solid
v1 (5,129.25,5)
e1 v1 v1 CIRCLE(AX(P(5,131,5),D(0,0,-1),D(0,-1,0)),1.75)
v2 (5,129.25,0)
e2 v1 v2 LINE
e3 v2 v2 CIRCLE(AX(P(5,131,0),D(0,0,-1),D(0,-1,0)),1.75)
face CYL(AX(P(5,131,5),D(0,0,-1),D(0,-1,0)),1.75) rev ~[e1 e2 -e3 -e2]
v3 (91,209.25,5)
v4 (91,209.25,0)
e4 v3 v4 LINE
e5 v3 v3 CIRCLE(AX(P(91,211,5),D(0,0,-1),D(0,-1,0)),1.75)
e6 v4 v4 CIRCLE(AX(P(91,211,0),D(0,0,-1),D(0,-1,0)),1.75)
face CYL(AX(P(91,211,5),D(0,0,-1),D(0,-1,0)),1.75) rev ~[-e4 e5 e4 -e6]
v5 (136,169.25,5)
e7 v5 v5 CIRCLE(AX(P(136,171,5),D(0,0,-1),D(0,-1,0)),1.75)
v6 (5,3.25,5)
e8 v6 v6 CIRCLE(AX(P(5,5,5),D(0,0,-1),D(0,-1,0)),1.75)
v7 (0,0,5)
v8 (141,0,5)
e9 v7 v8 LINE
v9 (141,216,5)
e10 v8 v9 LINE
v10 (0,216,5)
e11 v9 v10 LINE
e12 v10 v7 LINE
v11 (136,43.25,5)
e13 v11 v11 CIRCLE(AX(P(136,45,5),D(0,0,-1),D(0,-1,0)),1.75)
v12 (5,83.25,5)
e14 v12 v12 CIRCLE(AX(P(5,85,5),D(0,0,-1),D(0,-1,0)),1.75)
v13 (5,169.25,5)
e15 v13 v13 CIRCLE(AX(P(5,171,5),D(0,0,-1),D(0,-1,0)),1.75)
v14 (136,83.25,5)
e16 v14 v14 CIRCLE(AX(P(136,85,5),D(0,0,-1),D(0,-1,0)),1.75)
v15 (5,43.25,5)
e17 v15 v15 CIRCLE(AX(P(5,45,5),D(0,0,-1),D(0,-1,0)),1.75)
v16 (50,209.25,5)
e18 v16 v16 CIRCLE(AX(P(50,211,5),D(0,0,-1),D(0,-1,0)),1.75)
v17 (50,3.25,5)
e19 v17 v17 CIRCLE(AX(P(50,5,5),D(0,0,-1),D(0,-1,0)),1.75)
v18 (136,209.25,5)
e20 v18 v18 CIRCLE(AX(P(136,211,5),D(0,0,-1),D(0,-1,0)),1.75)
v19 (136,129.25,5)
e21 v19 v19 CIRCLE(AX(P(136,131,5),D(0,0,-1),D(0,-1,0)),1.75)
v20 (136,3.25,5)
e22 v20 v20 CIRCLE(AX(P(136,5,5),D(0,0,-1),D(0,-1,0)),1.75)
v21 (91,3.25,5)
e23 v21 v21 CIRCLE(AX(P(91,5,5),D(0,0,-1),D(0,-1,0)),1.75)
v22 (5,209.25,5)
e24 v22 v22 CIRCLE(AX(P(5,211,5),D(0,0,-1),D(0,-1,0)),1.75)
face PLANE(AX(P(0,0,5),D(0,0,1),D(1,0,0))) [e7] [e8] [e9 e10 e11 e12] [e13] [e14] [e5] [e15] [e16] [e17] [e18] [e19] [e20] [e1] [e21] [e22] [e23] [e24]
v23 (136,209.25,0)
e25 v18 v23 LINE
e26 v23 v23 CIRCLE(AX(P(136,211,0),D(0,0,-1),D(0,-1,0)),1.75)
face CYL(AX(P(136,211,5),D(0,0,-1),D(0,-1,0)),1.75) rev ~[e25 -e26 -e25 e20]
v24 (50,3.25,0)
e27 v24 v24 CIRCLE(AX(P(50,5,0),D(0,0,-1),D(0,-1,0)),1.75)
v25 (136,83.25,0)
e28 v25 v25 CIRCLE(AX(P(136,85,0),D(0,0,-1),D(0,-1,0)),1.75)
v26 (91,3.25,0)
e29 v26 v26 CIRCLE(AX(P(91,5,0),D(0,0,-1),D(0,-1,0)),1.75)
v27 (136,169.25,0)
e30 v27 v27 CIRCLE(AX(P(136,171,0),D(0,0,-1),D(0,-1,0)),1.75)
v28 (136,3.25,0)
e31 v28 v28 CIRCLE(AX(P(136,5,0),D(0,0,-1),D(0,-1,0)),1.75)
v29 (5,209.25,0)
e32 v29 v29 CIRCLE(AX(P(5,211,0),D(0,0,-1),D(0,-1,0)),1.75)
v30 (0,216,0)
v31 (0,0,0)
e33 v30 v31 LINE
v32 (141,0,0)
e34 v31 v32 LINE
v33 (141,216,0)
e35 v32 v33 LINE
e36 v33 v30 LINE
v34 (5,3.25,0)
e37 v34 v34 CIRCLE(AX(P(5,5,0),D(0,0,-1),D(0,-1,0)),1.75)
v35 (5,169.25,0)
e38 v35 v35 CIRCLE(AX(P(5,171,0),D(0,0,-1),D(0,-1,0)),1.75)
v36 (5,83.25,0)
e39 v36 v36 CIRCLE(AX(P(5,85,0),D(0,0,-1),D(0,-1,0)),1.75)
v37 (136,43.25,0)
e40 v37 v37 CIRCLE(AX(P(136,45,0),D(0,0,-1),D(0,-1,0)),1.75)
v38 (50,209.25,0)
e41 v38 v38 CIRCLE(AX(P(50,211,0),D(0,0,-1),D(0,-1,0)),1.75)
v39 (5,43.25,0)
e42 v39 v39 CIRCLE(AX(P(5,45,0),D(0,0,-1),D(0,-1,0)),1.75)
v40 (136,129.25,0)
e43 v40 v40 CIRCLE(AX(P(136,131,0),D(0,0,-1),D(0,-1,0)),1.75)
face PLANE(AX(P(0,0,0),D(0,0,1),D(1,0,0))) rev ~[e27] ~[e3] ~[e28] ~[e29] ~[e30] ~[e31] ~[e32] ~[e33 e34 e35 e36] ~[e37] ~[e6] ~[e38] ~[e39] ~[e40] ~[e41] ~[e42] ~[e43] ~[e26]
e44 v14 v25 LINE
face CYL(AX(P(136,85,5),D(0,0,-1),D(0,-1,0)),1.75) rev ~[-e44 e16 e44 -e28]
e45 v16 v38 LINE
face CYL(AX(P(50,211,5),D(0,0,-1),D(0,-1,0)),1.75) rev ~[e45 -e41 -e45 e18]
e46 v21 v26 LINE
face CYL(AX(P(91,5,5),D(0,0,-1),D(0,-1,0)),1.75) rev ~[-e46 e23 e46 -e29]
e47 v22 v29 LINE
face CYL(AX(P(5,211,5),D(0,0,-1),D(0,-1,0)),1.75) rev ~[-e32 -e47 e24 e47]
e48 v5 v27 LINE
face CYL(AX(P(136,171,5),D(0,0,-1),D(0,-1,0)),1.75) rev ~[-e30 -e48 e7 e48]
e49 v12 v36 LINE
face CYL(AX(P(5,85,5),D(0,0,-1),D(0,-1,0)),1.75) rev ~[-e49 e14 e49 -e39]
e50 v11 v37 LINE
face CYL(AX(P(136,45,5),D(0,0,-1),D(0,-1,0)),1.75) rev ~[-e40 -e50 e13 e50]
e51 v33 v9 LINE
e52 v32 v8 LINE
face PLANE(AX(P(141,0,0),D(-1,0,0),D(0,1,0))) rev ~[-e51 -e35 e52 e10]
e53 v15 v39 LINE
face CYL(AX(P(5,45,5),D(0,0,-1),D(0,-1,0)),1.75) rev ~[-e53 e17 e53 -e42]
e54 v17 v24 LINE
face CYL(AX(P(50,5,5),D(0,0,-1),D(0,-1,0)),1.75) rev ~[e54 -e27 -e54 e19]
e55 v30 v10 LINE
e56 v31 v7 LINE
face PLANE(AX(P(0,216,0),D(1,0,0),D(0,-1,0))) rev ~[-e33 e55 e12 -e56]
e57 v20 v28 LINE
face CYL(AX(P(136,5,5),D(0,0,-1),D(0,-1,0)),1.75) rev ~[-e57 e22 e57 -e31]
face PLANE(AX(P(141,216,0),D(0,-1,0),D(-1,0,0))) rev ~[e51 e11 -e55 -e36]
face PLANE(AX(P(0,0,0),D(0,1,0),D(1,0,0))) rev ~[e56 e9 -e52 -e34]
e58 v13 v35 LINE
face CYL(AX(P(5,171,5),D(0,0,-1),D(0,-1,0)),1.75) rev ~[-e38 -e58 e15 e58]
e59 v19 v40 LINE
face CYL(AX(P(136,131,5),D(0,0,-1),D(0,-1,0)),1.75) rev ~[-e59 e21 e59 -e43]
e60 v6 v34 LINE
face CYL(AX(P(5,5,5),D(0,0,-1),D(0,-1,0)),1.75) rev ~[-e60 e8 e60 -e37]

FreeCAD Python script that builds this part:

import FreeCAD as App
import Part
import Sketcher


def add_polygon(sketch, points):
    """Adds a closed chain of lines whose ends are joined by coincident constraints."""
    first, n = sketch.GeometryCount, len(points)
    for a, b in zip(points, points[1:] + points[:1]):
        sketch.addGeometry(Part.LineSegment(App.Vector(*a, 0), App.Vector(*b, 0)), False)
    for i in range(n):
        sketch.addConstraint(Sketcher.Constraint("Coincident", first + i, 2, first + (i + 1) % n, 1))

doc = App.newDocument("Part")
body = doc.addObject("PartDesign::Body", "Body")

# Sketch on XY plane
sketch1 = body.newObject("Sketcher::SketchObject", "Sketch")
sketch1.AttachmentSupport = (doc.getObject("XY_Plane"), [""])
sketch1.MapMode = "FlatFace"
add_polygon(sketch1, [(0, 216), (0, 0), (141, 0), (141, 216)])  # lines 0-3
sketch1.addConstraint(Sketcher.Constraint("Vertical", 0))
sketch1.addConstraint(Sketcher.Constraint("Horizontal", 1))
sketch1.addConstraint(Sketcher.Constraint("Vertical", 2))
sketch1.addConstraint(Sketcher.Constraint("Horizontal", 3))
sketch1.addConstraint(Sketcher.Constraint("Coincident", 0, 2, -1, 1))
sketch1.addConstraint(Sketcher.Constraint("DistanceX", 1, 1, 1, 2, 141.0))
sketch1.addConstraint(Sketcher.Constraint("DistanceY", 0, 2, 0, 1, 216.0))
pad1 = body.newObject("PartDesign::Pad", "Pad")
pad1.Profile = sketch1
pad1.Length = 5

# Sketch on XY plane
sketch2 = body.newObject("Sketcher::SketchObject", "Sketch001")
sketch2.AttachmentSupport = (doc.getObject("XY_Plane"), [""])
sketch2.MapMode = "FlatFace"
sketch2.AttachmentOffset = App.Placement(App.Vector(0, 0, 5), App.Rotation())
sketch2.addGeometry(Part.Circle(App.Vector(5, 211, 0), App.Vector(0, 0, 1), 1.8), False)
sketch2.addGeometry(Part.Circle(App.Vector(136, 211, 0), App.Vector(0, 0, 1), 1.8), False)
sketch2.addGeometry(Part.Circle(App.Vector(136, 5, 0), App.Vector(0, 0, 1), 1.8), False)
sketch2.addGeometry(Part.Circle(App.Vector(5, 5, 0), App.Vector(0, 0, 1), 1.8), False)
sketch2.addGeometry(Part.Circle(App.Vector(5, 171, 0), App.Vector(0, 0, 1), 1.8), False)
sketch2.addGeometry(Part.Circle(App.Vector(136, 171, 0), App.Vector(0, 0, 1), 1.8), False)
sketch2.addGeometry(Part.Circle(App.Vector(5, 131, 0), App.Vector(0, 0, 1), 1.8), False)
sketch2.addGeometry(Part.Circle(App.Vector(136, 131, 0), App.Vector(0, 0, 1), 1.8), False)
sketch2.addGeometry(Part.Circle(App.Vector(50, 211, 0), App.Vector(0, 0, 1), 1.8), False)
sketch2.addGeometry(Part.Circle(App.Vector(50, 5, 0), App.Vector(0, 0, 1), 1.8), False)
sketch2.addGeometry(Part.Circle(App.Vector(91, 211, 0), App.Vector(0, 0, 1), 1.8), False)
sketch2.addGeometry(Part.Circle(App.Vector(91, 5, 0), App.Vector(0, 0, 1), 1.8), False)
sketch2.addGeometry(Part.Circle(App.Vector(5, 45, 0), App.Vector(0, 0, 1), 1.8), False)
sketch2.addGeometry(Part.Circle(App.Vector(136, 45, 0), App.Vector(0, 0, 1), 1.8), False)
sketch2.addGeometry(Part.Circle(App.Vector(5, 85, 0), App.Vector(0, 0, 1), 1.8), False)
sketch2.addGeometry(Part.Circle(App.Vector(136, 85, 0), App.Vector(0, 0, 1), 1.8), False)
sketch2.addConstraint(Sketcher.Constraint("Equal", 0, 1))
sketch2.addConstraint(Sketcher.Constraint("Equal", 1, 2))
sketch2.addConstraint(Sketcher.Constraint("Equal", 2, 3))
sketch2.addConstraint(Sketcher.Constraint("Equal", 3, 4))
sketch2.addConstraint(Sketcher.Constraint("Equal", 4, 5))
sketch2.addConstraint(Sketcher.Constraint("Equal", 5, 6))
sketch2.addConstraint(Sketcher.Constraint("Equal", 6, 7))
sketch2.addConstraint(Sketcher.Constraint("Equal", 7, 8))
sketch2.addConstraint(Sketcher.Constraint("Equal", 8, 9))
sketch2.addConstraint(Sketcher.Constraint("Equal", 9, 10))
sketch2.addConstraint(Sketcher.Constraint("Equal", 10, 11))
sketch2.addConstraint(Sketcher.Constraint("Equal", 11, 12))
sketch2.addConstraint(Sketcher.Constraint("Equal", 12, 13))
sketch2.addConstraint(Sketcher.Constraint("Equal", 13, 14))
sketch2.addConstraint(Sketcher.Constraint("Equal", 14, 15))
sketch2.addConstraint(Sketcher.Constraint("Horizontal", 0, 3, 1, 3))
sketch2.addConstraint(Sketcher.Constraint("Horizontal", 2, 3, 3, 3))
sketch2.addConstraint(Sketcher.Constraint("Horizontal", 4, 3, 5, 3))
sketch2.addConstraint(Sketcher.Constraint("Horizontal", 6, 3, 7, 3))
sketch2.addConstraint(Sketcher.Constraint("Horizontal", 1, 3, 8, 3))
sketch2.addConstraint(Sketcher.Constraint("Horizontal", 3, 3, 9, 3))
sketch2.addConstraint(Sketcher.Constraint("Horizontal", 8, 3, 10, 3))
sketch2.addConstraint(Sketcher.Constraint("Horizontal", 9, 3, 11, 3))
sketch2.addConstraint(Sketcher.Constraint("Horizontal", 12, 3, 13, 3))
sketch2.addConstraint(Sketcher.Constraint("Horizontal", 14, 3, 15, 3))
sketch2.addConstraint(Sketcher.Constraint("Vertical", 1, 3, 2, 3))
sketch2.addConstraint(Sketcher.Constraint("Vertical", 0, 3, 3, 3))
sketch2.addConstraint(Sketcher.Constraint("Vertical", 3, 3, 4, 3))
sketch2.addConstraint(Sketcher.Constraint("Vertical", 2, 3, 5, 3))
sketch2.addConstraint(Sketcher.Constraint("Vertical", 4, 3, 6, 3))
sketch2.addConstraint(Sketcher.Constraint("Vertical", 5, 3, 7, 3))
sketch2.addConstraint(Sketcher.Constraint("Vertical", 8, 3, 9, 3))
sketch2.addConstraint(Sketcher.Constraint("Vertical", 10, 3, 11, 3))
sketch2.addConstraint(Sketcher.Constraint("Vertical", 6, 3, 12, 3))
sketch2.addConstraint(Sketcher.Constraint("Vertical", 7, 3, 13, 3))
sketch2.addConstraint(Sketcher.Constraint("Vertical", 12, 3, 14, 3))
sketch2.addConstraint(Sketcher.Constraint("Vertical", 13, 3, 15, 3))
sketch2.addConstraint(Sketcher.Constraint("Diameter", 0, 3.5))
sketch2.addConstraint(Sketcher.Constraint("DistanceX", -1, 1, 0, 3, 5.0))
sketch2.addConstraint(Sketcher.Constraint("DistanceY", -1, 1, 0, 3, 211.0))
sketch2.addConstraint(Sketcher.Constraint("DistanceX", -1, 1, 1, 3, 136.0))
sketch2.addConstraint(Sketcher.Constraint("DistanceY", -1, 1, 2, 3, 5.0))
sketch2.addConstraint(Sketcher.Constraint("DistanceY", -1, 1, 4, 3, 171.0))
sketch2.addConstraint(Sketcher.Constraint("DistanceY", -1, 1, 6, 3, 131.0))
sketch2.addConstraint(Sketcher.Constraint("DistanceX", -1, 1, 8, 3, 50.0))
sketch2.addConstraint(Sketcher.Constraint("DistanceX", -1, 1, 10, 3, 91.0))
sketch2.addConstraint(Sketcher.Constraint("DistanceY", -1, 1, 12, 3, 45.0))
sketch2.addConstraint(Sketcher.Constraint("DistanceY", -1, 1, 14, 3, 85.0))
doc.recompute()
hole = body.newObject("PartDesign::Hole", "Hole")
hole.Profile = sketch2
hole.ThreadType = "None"
hole.Diameter = 3.5
hole.DepthType = "ThroughAll"

doc.recompute()
